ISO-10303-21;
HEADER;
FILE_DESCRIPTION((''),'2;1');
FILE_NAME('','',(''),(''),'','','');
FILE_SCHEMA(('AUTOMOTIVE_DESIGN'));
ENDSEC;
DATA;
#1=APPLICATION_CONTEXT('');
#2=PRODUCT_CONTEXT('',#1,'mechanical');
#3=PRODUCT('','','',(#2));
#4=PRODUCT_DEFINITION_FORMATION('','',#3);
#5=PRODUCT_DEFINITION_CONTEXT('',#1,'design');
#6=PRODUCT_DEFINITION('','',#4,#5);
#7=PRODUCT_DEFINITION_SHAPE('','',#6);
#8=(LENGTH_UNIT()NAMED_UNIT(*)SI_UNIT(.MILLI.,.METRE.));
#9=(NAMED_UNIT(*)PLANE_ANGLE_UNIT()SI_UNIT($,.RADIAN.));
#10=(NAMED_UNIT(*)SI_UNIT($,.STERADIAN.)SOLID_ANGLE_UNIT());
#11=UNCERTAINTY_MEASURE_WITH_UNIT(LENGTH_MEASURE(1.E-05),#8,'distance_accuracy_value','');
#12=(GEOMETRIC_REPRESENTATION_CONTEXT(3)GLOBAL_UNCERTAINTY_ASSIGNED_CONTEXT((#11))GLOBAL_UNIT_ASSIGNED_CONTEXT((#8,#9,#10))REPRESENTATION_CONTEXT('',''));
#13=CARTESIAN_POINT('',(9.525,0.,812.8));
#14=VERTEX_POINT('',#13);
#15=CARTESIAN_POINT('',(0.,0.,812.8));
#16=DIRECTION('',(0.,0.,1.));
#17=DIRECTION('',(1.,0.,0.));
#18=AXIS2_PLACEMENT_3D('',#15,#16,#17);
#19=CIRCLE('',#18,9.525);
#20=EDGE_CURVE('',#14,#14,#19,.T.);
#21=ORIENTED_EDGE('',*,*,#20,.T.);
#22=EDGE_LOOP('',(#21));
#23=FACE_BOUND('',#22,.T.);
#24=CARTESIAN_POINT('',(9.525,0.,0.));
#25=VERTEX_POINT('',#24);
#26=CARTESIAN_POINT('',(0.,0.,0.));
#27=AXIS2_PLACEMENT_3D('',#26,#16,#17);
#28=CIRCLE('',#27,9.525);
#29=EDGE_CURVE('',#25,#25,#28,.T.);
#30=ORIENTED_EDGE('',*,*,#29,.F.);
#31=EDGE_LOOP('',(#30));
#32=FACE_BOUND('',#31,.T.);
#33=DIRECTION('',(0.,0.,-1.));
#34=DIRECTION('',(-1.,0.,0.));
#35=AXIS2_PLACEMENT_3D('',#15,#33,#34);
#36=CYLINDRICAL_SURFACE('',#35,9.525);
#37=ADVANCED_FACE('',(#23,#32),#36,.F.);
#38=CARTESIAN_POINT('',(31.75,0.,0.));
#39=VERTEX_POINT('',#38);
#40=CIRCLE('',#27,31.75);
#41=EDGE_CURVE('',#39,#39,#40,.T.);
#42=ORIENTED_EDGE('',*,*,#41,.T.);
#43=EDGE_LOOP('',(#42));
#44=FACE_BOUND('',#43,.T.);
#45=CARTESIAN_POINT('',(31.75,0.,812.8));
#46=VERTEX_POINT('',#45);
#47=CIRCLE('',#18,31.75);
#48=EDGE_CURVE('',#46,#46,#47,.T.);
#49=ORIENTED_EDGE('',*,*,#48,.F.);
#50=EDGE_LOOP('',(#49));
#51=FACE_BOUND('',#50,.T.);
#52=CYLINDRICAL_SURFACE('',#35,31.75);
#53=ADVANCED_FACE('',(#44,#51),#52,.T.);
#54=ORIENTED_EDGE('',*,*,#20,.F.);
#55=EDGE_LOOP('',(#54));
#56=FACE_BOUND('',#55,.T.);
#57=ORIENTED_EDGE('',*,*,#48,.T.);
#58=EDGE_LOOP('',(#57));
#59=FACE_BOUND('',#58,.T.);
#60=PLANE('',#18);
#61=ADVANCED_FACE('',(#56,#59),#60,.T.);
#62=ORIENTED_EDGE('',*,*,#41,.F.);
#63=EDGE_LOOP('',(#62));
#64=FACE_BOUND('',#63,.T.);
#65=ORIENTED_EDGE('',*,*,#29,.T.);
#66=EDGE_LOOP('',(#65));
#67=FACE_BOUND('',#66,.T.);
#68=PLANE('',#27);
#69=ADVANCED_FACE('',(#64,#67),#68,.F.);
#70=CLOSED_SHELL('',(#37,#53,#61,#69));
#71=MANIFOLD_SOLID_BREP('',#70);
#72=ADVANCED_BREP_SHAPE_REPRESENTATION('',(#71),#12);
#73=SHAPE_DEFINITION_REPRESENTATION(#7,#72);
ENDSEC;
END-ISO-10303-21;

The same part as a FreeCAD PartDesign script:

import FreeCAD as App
import Part
import Sketcher
from FreeCAD import Vector
Q = App.Units.Quantity

doc = App.newDocument("Part")
body = doc.addObject("PartDesign::Body", "Body")

sketch1 = body.newObject("Sketcher::SketchObject", "Sketch")
sketch1.AttachmentSupport = (doc.getObject("XY_Plane"), [""])
sketch1.MapMode = "FlatFace"
sketch1.addGeometry([
    Part.Circle(Vector(0, 0, 0), Vector(0, 0, 1), 32),
    Part.Circle(Vector(0, 0, 0), Vector(0, 0, 1), 10),
], False)
sketch1.addConstraint([
    Sketcher.Constraint("Coincident", 0, 3, -1, 1),
    Sketcher.Constraint("Coincident", 1, 3, -1, 1),
    Sketcher.Constraint("Diameter", 0, Q("2.5 in")),
    Sketcher.Constraint("Diameter", 1, Q("0.75 in")),
])
pad1 = body.newObject("PartDesign::Pad", "Pad")
pad1.Profile = sketch1
pad1.Length = Q("32 in")

doc.recompute()
